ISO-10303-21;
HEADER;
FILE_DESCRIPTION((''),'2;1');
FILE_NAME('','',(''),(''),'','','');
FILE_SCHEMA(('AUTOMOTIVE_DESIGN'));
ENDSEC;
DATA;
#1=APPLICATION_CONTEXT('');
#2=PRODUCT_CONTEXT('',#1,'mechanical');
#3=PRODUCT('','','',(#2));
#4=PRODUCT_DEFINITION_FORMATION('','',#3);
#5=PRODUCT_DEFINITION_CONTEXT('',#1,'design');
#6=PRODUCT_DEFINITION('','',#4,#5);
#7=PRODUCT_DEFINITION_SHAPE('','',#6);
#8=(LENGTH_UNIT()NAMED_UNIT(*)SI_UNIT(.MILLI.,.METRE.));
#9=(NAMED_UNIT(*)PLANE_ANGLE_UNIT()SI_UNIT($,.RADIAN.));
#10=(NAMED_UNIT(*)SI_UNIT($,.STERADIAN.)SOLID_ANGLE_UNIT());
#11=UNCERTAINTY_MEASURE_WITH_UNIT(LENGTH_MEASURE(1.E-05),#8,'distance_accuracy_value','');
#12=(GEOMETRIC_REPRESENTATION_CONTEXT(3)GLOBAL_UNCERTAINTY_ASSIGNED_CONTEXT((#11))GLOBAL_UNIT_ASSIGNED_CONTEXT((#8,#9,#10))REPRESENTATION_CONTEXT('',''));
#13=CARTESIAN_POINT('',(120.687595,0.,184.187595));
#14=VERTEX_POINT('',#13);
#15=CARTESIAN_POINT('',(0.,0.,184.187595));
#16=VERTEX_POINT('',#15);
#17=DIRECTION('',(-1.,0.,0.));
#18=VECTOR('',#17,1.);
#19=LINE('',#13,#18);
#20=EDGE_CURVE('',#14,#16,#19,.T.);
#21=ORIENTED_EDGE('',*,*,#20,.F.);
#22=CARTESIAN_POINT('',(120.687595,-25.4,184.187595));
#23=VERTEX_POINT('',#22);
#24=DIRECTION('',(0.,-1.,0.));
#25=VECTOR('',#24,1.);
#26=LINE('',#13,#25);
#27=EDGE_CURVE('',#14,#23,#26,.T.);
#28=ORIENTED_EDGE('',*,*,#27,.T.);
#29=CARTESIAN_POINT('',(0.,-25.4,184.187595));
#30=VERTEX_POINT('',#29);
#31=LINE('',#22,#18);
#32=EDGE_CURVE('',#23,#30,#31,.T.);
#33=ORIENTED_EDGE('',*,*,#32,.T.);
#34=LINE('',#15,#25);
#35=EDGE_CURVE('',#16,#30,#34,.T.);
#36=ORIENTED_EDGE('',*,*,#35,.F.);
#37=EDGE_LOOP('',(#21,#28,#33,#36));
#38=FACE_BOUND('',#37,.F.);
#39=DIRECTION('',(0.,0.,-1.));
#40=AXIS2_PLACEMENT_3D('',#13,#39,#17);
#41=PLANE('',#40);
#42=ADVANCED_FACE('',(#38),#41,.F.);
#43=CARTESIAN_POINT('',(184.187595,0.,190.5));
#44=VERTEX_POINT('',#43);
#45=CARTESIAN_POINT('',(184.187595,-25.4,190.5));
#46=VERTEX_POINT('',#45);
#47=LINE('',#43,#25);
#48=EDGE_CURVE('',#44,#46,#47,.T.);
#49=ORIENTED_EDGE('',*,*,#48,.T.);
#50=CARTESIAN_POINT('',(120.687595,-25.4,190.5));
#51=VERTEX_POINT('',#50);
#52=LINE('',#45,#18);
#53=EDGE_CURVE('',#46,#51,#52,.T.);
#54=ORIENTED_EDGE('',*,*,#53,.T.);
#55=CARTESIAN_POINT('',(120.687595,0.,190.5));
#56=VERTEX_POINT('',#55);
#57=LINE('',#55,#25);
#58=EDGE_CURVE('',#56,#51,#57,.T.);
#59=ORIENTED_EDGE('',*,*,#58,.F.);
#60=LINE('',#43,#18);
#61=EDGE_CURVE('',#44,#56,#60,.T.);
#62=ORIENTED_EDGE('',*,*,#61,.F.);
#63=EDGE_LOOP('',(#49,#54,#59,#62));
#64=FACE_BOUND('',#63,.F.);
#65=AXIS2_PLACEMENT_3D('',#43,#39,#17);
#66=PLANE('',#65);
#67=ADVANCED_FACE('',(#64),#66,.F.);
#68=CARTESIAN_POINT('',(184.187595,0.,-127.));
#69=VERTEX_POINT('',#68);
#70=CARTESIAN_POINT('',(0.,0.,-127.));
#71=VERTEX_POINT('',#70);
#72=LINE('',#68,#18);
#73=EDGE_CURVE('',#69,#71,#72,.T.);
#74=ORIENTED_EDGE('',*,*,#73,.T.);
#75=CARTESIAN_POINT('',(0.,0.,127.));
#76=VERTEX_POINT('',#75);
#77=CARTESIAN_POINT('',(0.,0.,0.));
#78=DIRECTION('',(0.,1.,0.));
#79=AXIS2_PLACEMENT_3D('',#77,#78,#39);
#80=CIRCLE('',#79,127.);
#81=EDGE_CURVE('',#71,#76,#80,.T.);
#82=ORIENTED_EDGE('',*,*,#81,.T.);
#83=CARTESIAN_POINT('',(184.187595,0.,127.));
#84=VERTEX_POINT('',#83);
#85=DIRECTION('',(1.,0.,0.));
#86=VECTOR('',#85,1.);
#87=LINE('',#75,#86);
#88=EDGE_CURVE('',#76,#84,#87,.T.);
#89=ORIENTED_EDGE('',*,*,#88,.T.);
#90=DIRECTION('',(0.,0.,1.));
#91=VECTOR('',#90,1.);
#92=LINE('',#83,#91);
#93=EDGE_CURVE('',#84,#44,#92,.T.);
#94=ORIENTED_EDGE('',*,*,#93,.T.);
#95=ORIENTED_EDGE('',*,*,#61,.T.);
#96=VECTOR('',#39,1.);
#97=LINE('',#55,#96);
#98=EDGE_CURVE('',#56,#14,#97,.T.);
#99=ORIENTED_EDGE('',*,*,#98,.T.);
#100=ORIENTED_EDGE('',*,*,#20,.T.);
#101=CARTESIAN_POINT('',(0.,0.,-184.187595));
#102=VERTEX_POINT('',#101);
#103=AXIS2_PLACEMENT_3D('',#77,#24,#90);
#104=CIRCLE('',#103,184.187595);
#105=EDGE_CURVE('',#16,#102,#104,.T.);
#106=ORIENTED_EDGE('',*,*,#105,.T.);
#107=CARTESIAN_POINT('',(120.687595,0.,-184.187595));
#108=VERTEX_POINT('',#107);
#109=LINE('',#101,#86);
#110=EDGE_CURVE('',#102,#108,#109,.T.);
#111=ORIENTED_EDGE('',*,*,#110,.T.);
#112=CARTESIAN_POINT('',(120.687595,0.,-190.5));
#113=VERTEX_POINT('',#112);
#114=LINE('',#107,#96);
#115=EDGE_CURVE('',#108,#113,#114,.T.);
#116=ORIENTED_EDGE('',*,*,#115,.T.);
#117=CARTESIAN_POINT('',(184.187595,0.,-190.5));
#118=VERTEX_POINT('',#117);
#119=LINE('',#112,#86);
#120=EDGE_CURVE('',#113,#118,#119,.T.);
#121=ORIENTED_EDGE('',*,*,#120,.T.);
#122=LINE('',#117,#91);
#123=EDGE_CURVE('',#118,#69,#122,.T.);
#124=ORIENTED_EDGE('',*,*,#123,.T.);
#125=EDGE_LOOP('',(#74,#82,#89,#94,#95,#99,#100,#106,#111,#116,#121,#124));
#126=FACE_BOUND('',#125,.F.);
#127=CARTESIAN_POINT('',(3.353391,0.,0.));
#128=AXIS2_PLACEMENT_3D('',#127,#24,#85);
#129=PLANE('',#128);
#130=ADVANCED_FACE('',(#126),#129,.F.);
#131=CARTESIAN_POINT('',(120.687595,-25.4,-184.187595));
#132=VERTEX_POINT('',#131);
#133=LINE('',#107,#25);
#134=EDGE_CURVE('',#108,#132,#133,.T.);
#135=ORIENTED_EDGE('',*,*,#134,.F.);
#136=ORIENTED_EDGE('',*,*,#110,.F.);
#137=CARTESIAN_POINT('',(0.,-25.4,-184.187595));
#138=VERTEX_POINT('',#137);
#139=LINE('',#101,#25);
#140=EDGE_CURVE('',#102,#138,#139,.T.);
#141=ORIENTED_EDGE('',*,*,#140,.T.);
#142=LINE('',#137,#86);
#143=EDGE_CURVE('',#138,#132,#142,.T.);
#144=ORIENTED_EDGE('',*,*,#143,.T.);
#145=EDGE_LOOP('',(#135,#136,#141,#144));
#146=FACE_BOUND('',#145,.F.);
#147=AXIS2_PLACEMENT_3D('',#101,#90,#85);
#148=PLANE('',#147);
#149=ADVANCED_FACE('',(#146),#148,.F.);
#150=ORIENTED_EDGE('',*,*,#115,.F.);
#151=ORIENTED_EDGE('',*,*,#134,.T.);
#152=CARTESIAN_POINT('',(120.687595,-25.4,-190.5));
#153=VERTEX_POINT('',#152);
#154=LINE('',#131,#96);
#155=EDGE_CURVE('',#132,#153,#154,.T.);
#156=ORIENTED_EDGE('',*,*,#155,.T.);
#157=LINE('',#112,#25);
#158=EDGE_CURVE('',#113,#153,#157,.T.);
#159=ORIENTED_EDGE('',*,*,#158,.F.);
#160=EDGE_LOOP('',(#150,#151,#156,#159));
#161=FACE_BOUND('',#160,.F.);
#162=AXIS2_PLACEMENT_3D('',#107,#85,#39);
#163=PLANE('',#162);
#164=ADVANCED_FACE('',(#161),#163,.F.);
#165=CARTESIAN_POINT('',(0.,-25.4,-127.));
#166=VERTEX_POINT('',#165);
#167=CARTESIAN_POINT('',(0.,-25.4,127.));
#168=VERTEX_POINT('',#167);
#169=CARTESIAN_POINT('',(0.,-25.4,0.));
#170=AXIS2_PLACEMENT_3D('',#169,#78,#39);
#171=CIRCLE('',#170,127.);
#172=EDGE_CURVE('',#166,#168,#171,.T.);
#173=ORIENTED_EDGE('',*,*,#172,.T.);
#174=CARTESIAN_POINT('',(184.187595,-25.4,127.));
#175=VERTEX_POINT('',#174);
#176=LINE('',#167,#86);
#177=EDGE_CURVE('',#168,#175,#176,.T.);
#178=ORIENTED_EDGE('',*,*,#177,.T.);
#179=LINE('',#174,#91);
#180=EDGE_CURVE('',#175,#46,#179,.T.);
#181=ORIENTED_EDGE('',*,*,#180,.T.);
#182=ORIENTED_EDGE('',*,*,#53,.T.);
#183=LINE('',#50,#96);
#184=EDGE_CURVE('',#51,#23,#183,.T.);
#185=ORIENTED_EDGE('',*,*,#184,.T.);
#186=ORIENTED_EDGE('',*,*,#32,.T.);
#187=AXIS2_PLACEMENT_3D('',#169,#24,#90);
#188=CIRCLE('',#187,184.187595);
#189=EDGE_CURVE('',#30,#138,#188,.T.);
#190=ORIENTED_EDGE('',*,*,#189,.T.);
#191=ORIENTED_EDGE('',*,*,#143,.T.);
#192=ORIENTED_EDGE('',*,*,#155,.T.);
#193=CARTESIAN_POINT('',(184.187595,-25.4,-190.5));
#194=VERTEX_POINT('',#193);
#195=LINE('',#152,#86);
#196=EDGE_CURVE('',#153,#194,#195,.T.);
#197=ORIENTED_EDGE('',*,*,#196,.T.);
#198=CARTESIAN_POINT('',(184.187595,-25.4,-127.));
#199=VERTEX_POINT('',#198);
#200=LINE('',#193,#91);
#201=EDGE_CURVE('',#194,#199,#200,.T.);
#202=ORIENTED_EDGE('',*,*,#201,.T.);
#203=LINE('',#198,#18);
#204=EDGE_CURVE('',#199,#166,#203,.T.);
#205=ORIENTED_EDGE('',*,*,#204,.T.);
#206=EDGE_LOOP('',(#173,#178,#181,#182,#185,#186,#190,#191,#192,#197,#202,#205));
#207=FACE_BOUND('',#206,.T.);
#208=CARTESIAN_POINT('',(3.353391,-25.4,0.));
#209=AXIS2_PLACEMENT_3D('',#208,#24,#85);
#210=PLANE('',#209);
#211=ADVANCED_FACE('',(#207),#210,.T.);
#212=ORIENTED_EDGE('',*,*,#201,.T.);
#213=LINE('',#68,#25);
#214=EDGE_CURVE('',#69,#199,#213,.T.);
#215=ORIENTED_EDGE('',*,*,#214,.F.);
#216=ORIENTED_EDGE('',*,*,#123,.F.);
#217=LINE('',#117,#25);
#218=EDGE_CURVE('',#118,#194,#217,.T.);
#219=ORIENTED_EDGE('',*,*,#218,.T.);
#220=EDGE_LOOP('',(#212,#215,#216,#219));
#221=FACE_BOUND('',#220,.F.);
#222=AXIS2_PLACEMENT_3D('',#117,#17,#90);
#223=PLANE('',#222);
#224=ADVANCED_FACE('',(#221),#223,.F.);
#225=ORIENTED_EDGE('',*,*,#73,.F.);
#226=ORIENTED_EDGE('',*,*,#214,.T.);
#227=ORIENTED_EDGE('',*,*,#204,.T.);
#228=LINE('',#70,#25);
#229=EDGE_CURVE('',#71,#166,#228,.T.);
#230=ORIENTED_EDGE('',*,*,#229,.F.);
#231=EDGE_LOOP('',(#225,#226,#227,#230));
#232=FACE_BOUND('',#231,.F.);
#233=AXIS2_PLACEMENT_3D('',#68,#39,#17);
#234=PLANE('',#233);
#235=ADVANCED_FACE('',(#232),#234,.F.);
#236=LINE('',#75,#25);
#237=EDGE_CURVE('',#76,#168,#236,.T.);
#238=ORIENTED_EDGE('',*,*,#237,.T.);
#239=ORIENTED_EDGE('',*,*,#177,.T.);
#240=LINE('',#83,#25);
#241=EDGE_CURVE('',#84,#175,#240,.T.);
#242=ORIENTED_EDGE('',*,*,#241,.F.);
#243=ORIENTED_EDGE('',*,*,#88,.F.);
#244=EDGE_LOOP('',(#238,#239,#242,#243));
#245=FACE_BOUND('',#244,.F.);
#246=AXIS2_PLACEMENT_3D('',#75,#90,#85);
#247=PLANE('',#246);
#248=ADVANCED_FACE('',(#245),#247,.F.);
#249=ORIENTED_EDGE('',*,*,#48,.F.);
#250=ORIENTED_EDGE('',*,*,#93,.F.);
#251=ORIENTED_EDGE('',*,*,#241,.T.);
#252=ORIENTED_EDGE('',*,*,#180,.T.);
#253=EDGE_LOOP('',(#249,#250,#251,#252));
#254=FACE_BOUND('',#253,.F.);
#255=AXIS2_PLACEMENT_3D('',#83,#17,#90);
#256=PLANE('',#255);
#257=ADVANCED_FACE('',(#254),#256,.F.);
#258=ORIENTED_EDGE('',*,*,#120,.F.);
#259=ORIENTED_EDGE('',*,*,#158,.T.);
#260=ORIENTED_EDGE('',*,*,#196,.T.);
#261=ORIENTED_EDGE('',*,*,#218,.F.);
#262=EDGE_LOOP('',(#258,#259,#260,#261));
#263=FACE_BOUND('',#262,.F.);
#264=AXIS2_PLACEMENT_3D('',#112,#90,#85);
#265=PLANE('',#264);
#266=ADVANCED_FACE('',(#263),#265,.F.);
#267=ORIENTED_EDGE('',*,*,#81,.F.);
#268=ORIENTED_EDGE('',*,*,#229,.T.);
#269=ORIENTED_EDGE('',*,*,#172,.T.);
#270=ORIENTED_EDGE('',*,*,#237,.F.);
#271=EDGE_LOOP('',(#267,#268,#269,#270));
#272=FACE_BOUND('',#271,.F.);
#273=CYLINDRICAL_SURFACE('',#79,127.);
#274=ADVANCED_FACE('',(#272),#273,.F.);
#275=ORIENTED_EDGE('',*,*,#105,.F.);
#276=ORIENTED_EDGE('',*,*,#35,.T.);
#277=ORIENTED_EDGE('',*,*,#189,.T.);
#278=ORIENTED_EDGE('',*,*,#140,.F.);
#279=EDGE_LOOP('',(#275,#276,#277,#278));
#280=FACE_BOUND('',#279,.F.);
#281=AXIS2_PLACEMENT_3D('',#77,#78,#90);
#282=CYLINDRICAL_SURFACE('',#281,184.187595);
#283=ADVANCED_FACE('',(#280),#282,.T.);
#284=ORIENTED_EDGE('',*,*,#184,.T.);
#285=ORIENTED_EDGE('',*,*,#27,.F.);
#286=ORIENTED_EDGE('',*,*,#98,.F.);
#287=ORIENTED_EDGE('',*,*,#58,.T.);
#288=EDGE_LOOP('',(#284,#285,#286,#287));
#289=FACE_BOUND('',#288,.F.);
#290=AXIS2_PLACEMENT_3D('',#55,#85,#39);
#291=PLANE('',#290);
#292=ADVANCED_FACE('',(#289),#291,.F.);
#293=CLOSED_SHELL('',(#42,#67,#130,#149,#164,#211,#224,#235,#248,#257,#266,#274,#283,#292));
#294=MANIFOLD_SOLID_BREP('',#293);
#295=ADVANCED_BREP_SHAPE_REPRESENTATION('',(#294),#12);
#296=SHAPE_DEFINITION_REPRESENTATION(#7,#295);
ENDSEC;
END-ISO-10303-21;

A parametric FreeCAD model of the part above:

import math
import FreeCAD as App
import Part
import Sketcher

V = App.Vector
Q = App.Units.Quantity

doc = App.newDocument("Part")
body = doc.addObject("PartDesign::Body", "Body")

# Sketch on XZ plane
sketch1 = doc.addObject("Sketcher::SketchObject", "Sketch")
body.addObject(sketch1)
sketch1.AttachmentSupport = (doc.XZ_Plane, [""])
sketch1.MapMode = "FlatFace"
sketch1.addGeometry([
    Part.LineSegment(V(121, 184, 0), V(0, 184, 0)),  # 0
    Part.ArcOfCircle(Part.Circle(V(0, 0, 0), V(0, 0, 1), 184), math.radians(90), math.radians(270)),  # 1
    Part.LineSegment(V(0, -184, 0), V(121, -184, 0)),  # 2
    Part.LineSegment(V(121, -184, 0), V(121, -190, 0)),  # 3
    Part.LineSegment(V(121, -190, 0), V(184, -190, 0)),  # 4
    Part.LineSegment(V(184, -190, 0), V(184, -127, 0)),  # 5
    Part.LineSegment(V(184, -127, 0), V(0, -127, 0)),  # 6
    Part.ArcOfCircle(Part.Circle(V(0, 0, 0), V(0, 0, 1), 127), math.radians(90), math.radians(270)),  # 7
    Part.LineSegment(V(0, 127, 0), V(184, 127, 0)),  # 8
    Part.LineSegment(V(184, 127, 0), V(184, 190, 0)),  # 9
    Part.LineSegment(V(184, 190, 0), V(121, 190, 0)),  # 10
    Part.LineSegment(V(121, 190, 0), V(121, 184, 0)),  # 11
], False)
sketch1.addConstraint([
    Sketcher.Constraint("Tangent", 0, 2, 1, 1),
    Sketcher.Constraint("Tangent", 1, 2, 2, 1),
    Sketcher.Constraint("Coincident", 2, 2, 3, 1),
    Sketcher.Constraint("Coincident", 3, 2, 4, 1),
    Sketcher.Constraint("Coincident", 4, 2, 5, 1),
    Sketcher.Constraint("Coincident", 5, 2, 6, 1),
    Sketcher.Constraint("Tangent", 6, 2, 7, 2),
    Sketcher.Constraint("Tangent", 7, 1, 8, 1),
    Sketcher.Constraint("Coincident", 8, 2, 9, 1),
    Sketcher.Constraint("Coincident", 9, 2, 10, 1),
    Sketcher.Constraint("Coincident", 10, 2, 11, 1),
    Sketcher.Constraint("Coincident", 11, 2, 0, 1),
    Sketcher.Constraint("Horizontal", 0),
    Sketcher.Constraint("Horizontal", 2),
    Sketcher.Constraint("Vertical", 3),
    Sketcher.Constraint("Horizontal", 4),
    Sketcher.Constraint("Vertical", 5),
    Sketcher.Constraint("Horizontal", 6),
    Sketcher.Constraint("Horizontal", 8),
    Sketcher.Constraint("Vertical", 9),
    Sketcher.Constraint("Horizontal", 10),
    Sketcher.Constraint("Vertical", 11),
    Sketcher.Constraint("Coincident", 1, 3, -1, 1),
    Sketcher.Constraint("Coincident", 7, 3, -1, 1),
    Sketcher.Constraint("Symmetric", 4, 2, 9, 2, -1),
    Sketcher.Constraint("Vertical", 3, 2, 10, 2),
    Sketcher.Constraint("Equal", 10, 5),
    Sketcher.Constraint("Radius", 7, Q("5 in")),
    Sketcher.Constraint("DistanceX", 4, 1, 4, 2, Q("2.5 in")),
    Sketcher.Constraint("Radius", 1, Q("184.187595 mm")),
    Sketcher.Constraint("DistanceX", 0, 2, 0, 1, Q("120.687595 mm")),
])
pad1 = doc.addObject("PartDesign::Pad", "Pad")
body.addObject(pad1)
pad1.Profile = sketch1
pad1.Length = Q("1 in")

doc.recompute()
